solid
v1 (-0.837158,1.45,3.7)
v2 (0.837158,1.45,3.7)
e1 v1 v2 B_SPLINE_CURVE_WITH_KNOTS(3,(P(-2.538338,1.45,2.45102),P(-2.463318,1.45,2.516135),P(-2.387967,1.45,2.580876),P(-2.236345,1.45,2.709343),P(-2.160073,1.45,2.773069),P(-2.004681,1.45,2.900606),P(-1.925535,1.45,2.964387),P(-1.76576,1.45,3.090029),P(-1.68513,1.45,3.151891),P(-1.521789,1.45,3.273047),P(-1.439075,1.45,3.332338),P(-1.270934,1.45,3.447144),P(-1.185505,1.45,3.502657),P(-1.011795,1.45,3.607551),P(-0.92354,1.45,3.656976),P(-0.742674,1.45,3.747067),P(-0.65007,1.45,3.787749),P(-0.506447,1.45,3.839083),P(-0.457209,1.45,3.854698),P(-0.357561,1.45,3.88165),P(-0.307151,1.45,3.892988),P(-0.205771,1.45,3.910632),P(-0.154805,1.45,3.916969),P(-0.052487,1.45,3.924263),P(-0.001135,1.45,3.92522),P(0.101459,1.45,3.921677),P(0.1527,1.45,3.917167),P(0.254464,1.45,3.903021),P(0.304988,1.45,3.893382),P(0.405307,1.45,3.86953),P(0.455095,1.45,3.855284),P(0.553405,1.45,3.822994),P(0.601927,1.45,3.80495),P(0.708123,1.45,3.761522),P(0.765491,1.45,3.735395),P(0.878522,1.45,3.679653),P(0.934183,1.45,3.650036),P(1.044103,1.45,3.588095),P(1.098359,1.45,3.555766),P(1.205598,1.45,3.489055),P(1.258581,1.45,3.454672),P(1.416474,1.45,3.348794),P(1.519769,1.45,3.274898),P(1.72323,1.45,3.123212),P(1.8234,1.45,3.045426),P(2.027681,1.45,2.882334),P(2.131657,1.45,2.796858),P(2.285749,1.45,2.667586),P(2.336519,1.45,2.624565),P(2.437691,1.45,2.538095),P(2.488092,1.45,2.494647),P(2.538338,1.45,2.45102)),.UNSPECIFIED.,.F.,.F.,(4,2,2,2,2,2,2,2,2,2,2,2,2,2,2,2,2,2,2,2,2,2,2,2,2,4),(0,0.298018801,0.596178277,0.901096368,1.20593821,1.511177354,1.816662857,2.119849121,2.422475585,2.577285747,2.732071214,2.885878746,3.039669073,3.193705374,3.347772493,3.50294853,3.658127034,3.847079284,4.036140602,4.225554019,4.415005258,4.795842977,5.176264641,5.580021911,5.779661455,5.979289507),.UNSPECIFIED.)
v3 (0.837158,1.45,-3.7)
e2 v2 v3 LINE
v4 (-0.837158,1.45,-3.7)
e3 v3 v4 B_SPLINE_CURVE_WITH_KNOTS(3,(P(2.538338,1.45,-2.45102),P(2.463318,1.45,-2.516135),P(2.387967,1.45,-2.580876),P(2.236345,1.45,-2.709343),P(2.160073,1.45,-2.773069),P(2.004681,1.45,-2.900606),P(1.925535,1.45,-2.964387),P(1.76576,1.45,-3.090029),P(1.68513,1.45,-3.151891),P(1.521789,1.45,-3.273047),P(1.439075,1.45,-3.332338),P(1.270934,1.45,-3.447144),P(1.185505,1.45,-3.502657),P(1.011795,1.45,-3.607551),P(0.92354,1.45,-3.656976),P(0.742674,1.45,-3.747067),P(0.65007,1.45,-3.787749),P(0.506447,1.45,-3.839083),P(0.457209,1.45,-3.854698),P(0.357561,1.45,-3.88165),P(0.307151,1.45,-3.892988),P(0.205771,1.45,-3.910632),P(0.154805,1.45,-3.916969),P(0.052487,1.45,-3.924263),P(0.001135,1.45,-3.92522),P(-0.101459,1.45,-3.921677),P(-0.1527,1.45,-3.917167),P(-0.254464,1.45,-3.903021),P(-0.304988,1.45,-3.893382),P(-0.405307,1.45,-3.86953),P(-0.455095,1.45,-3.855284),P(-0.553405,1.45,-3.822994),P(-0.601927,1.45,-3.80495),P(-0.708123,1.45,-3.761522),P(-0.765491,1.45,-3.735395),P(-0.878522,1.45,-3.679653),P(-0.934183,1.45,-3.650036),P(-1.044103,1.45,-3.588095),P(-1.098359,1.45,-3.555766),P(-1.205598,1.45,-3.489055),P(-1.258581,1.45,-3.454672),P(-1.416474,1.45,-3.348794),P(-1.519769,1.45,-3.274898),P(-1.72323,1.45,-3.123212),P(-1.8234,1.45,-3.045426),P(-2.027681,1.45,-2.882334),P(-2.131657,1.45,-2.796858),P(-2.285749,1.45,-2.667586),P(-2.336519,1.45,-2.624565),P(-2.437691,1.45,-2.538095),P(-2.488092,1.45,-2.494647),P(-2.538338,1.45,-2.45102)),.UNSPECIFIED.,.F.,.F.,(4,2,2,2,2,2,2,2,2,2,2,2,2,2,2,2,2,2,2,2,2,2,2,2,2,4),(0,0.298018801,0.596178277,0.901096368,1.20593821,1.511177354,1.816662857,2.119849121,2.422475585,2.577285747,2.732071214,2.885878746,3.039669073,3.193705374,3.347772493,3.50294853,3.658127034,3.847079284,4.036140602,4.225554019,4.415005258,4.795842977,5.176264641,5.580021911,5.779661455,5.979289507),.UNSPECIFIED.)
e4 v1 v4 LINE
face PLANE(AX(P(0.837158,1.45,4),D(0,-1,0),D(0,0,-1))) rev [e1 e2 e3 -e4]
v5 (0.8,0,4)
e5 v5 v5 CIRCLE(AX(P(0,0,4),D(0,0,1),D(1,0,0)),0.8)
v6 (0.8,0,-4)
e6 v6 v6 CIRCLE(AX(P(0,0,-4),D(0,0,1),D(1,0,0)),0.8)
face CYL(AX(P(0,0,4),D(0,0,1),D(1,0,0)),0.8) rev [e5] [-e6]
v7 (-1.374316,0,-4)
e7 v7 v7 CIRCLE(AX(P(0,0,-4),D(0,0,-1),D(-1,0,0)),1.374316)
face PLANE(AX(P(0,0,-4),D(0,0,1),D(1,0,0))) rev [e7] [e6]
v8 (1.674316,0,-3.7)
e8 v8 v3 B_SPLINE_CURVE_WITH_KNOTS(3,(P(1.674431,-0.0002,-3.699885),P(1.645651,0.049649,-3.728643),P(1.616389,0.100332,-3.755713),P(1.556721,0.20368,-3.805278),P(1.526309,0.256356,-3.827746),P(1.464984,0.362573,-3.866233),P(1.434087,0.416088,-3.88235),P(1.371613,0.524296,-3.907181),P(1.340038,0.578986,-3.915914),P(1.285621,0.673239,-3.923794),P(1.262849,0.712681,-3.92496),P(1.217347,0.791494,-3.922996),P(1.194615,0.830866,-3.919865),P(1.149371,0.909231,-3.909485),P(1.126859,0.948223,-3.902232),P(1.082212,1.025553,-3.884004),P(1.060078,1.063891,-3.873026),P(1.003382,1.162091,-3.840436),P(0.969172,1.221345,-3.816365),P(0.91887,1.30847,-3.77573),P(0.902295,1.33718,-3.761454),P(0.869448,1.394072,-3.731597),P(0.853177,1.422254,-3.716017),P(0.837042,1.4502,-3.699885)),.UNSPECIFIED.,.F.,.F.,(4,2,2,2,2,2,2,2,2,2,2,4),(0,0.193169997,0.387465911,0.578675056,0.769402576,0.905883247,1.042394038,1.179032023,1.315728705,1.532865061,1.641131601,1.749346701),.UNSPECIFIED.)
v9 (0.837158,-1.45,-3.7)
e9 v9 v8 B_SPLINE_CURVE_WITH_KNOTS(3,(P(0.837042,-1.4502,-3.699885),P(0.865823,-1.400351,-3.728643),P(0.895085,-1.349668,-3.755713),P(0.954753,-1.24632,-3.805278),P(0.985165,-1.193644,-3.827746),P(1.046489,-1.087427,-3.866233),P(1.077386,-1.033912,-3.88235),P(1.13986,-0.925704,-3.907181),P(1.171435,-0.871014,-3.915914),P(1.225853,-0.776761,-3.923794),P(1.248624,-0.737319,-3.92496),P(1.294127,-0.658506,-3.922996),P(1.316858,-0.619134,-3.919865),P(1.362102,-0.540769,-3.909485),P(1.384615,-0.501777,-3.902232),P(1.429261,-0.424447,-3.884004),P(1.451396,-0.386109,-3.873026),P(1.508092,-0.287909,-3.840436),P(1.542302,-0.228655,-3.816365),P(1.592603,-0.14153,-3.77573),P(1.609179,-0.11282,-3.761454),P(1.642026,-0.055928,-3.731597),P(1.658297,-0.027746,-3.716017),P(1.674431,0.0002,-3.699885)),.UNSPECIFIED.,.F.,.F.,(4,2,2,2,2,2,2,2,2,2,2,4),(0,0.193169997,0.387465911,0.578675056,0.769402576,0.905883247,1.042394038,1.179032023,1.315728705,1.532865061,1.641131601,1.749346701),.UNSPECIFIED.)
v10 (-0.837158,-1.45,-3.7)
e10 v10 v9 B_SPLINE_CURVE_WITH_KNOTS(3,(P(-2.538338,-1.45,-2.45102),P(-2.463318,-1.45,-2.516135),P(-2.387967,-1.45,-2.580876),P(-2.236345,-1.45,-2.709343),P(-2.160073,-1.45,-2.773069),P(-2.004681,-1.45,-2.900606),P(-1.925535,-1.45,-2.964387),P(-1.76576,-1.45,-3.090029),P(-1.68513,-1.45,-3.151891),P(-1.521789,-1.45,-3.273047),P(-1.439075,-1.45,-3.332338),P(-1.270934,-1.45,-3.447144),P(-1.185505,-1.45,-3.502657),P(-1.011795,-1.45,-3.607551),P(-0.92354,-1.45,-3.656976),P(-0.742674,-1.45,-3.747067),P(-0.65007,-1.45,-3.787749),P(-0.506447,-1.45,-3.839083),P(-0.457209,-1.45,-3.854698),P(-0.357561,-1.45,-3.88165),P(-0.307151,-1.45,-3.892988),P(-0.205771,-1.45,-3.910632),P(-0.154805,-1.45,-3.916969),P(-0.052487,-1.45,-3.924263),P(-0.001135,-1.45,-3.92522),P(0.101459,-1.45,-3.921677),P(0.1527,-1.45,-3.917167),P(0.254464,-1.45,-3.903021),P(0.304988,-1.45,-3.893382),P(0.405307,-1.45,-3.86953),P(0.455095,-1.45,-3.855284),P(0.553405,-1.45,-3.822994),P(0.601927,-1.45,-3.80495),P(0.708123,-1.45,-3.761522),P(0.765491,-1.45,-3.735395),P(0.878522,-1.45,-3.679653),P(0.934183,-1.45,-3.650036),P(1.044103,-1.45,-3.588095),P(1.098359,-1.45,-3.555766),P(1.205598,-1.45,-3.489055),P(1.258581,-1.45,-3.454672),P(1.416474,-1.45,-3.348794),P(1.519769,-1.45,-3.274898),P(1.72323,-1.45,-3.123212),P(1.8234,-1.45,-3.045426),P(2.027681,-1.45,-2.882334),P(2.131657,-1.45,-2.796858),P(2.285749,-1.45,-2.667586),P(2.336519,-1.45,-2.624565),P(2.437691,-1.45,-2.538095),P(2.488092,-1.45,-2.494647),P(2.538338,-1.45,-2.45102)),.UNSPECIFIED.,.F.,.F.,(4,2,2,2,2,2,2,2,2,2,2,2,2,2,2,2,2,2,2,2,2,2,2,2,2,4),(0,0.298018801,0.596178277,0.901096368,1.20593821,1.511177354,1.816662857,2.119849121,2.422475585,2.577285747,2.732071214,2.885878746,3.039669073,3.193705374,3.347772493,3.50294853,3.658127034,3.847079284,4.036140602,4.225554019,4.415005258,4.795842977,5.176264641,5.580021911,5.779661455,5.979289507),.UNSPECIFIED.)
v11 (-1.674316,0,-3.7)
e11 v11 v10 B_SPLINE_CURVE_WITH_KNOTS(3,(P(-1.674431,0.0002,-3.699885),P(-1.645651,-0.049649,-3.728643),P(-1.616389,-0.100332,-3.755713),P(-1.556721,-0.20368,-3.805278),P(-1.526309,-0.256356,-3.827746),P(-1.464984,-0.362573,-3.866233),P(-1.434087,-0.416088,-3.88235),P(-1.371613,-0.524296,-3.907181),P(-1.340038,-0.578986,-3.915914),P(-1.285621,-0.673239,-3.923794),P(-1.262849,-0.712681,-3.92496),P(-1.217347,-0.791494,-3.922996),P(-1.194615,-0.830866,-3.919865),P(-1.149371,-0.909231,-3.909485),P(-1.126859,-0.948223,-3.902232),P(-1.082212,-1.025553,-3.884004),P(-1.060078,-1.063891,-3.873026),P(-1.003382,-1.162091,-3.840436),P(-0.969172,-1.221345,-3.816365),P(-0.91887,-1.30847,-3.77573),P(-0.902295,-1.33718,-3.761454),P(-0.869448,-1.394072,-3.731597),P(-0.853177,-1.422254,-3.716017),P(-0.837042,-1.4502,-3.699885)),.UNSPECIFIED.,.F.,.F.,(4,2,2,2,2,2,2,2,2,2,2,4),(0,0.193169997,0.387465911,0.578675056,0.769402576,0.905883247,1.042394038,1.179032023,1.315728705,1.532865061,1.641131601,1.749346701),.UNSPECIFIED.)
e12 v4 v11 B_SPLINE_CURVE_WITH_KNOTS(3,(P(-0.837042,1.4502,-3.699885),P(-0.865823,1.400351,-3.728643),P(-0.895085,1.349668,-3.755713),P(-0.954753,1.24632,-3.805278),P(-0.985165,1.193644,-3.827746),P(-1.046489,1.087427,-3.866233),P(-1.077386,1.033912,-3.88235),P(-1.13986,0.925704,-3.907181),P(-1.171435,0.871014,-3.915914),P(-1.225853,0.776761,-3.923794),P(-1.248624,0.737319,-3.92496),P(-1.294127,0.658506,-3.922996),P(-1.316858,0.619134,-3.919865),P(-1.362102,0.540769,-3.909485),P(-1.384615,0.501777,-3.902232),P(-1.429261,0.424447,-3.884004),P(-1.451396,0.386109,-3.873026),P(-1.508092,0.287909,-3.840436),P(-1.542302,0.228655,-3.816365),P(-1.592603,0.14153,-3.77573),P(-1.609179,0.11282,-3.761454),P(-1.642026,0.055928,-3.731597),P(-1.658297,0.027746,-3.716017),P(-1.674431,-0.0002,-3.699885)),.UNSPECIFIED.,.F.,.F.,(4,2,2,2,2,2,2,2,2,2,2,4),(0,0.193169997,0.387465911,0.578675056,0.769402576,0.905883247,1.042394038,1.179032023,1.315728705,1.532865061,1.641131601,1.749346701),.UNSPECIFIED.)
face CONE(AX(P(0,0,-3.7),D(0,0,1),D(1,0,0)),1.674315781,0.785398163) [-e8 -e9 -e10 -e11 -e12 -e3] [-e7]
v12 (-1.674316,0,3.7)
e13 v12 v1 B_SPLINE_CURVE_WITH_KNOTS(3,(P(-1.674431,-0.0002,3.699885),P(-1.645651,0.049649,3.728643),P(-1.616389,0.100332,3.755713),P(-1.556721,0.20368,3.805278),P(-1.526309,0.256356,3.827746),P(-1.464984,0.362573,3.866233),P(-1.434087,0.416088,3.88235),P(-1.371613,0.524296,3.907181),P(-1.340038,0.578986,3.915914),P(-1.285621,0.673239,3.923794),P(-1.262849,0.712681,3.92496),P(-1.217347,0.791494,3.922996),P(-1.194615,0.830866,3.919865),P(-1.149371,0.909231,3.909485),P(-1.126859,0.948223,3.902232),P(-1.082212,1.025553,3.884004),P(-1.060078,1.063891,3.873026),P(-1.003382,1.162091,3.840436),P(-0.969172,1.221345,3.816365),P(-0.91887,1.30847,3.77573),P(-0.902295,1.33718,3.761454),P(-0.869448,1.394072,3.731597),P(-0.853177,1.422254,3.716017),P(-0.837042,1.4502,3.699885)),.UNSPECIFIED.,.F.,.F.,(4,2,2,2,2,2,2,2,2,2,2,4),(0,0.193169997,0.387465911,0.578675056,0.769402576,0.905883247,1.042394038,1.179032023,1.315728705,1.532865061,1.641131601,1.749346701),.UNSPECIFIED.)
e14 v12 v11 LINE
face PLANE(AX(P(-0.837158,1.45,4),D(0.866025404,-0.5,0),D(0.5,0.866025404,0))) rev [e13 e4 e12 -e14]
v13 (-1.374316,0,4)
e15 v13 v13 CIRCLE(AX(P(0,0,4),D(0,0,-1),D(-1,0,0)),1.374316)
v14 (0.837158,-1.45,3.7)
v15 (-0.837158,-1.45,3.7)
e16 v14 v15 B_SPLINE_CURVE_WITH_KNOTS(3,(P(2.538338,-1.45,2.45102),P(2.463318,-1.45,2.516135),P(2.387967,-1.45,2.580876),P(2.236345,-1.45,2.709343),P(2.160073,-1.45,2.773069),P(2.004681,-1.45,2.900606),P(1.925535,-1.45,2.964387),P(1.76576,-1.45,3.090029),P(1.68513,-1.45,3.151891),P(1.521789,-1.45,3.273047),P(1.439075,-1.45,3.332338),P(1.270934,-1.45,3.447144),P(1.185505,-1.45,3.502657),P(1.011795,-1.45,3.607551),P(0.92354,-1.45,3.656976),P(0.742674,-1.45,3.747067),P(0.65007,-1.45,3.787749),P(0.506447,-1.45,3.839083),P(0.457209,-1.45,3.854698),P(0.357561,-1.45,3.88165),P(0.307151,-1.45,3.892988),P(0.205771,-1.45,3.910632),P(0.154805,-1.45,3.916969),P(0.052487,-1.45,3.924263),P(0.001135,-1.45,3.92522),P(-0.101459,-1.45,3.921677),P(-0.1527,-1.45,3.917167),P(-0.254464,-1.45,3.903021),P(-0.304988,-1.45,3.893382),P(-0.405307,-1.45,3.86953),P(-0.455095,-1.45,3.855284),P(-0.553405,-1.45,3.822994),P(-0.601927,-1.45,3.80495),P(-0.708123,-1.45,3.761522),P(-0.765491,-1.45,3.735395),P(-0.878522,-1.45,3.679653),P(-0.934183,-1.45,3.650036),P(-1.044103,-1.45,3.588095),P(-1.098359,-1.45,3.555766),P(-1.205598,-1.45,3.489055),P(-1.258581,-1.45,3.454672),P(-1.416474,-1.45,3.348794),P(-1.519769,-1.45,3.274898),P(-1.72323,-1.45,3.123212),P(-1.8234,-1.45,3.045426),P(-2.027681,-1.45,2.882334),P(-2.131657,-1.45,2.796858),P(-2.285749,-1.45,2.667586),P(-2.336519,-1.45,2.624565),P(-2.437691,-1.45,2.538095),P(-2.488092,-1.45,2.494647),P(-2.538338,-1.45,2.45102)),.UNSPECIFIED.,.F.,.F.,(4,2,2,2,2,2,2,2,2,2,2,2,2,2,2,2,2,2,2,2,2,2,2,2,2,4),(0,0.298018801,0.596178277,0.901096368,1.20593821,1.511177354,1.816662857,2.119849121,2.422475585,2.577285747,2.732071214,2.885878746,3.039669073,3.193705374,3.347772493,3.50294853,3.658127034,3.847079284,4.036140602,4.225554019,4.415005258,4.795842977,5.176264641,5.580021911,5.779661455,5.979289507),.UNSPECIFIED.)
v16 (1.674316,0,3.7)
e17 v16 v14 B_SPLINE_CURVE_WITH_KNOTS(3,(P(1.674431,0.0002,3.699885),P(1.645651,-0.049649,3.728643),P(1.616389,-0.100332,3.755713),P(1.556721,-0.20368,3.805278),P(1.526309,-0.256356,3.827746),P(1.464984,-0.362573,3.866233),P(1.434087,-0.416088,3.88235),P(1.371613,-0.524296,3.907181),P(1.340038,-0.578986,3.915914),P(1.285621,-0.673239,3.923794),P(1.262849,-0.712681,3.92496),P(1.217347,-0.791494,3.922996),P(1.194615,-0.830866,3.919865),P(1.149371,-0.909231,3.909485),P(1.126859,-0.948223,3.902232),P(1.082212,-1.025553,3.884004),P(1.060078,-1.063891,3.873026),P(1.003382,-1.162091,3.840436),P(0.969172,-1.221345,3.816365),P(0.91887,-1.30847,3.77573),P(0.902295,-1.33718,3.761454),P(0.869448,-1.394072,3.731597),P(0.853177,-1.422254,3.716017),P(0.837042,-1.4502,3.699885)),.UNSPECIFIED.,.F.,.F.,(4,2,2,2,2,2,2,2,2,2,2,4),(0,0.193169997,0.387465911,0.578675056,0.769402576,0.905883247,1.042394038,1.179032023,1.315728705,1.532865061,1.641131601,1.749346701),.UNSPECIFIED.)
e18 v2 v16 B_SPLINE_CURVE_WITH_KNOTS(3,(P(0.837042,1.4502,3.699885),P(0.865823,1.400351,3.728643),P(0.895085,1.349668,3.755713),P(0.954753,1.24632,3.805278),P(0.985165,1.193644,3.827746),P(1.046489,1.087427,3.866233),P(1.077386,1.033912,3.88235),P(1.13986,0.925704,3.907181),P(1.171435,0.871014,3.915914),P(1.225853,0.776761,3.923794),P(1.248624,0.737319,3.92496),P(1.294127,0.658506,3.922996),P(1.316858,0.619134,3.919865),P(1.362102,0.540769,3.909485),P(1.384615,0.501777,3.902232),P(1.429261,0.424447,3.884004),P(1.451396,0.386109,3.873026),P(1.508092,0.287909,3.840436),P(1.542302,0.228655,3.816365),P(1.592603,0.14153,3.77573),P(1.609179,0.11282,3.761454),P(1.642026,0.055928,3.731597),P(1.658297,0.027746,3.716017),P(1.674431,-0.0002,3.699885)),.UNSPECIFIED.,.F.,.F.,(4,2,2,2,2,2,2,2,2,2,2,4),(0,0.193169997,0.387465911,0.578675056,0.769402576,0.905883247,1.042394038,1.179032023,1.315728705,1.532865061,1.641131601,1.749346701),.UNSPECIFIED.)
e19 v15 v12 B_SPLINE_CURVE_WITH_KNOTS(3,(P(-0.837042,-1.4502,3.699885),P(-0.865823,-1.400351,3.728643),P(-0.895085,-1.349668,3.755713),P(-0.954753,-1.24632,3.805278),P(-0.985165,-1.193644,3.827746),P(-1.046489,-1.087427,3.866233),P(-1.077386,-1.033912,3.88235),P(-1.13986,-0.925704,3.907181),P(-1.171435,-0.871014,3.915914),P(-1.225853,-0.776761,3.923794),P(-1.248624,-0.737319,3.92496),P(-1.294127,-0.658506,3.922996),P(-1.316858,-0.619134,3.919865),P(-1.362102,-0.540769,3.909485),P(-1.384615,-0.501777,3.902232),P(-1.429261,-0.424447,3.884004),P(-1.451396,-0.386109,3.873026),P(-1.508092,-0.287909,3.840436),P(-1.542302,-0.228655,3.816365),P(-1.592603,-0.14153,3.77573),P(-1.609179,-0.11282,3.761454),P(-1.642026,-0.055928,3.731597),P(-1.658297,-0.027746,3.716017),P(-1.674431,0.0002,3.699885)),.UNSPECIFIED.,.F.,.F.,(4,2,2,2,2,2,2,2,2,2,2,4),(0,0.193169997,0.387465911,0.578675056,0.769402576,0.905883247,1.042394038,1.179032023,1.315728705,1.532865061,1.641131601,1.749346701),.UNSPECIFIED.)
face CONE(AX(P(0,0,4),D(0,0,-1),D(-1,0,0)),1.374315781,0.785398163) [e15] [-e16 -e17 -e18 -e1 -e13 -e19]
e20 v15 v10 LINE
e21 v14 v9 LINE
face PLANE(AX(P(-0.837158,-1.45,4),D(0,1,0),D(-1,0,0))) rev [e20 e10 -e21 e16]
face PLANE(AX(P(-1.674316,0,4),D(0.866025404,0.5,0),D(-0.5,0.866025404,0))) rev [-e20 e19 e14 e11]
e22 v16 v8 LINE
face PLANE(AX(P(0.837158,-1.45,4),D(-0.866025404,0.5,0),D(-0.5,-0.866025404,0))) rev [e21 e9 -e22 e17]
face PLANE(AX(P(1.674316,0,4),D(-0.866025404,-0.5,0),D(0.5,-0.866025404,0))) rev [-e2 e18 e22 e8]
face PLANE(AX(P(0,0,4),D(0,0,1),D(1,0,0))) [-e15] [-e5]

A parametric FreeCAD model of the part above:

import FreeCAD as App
import Part
import Sketcher
Q = App.Units.Quantity


def add_polygon(sketch, points):
    """Adds a closed chain of lines whose ends are joined by coincident constraints."""
    first, n = sketch.GeometryCount, len(points)
    for a, b in zip(points, points[1:] + points[:1]):
        sketch.addGeometry(Part.LineSegment(App.Vector(*a, 0), App.Vector(*b, 0)), False)
    for i in range(n):
        sketch.addConstraint(Sketcher.Constraint("Coincident", first + i, 2, first + (i + 1) % n, 1))

doc = App.newDocument("Part")
body = doc.addObject("PartDesign::Body", "Body")

# Sketch on XY plane
sketch1 = body.newObject("Sketcher::SketchObject", "Sketch")
sketch1.AttachmentSupport = (doc.getObject("XY_Plane"), [""])
sketch1.MapMode = "FlatFace"
add_polygon(sketch1, [(1.674316, 0), (0.837158, 1.45), (-0.837158, 1.45), (-1.674316, 0), (-0.837158, -1.45), (0.837158, -1.45)])  # lines 0-5
sketch1.addConstraint([
    Sketcher.Constraint("Horizontal", 1),
    Sketcher.Constraint("Horizontal", 4),
    Sketcher.Constraint("Symmetric", 0, 2, 3, 2, -1, 1),
    Sketcher.Constraint("Symmetric", 2, 2, 5, 2, -1, 1),
    Sketcher.Constraint("PointOnObject", 2, 2, -1),
    Sketcher.Constraint("Parallel", 2, 5),
    Sketcher.Constraint("Vertical", 1, 2, 3, 2),
    Sketcher.Constraint("Angle", 0, Q("120 deg")),
    Sketcher.Constraint("DistanceY", 3, 2, 1, 2, 2.9),
    Sketcher.Constraint("DistanceX", 1, 2, 1, 1, 1.674316),
])
pad1 = body.newObject("PartDesign::Pad", "Pad")
pad1.Profile = sketch1
pad1.Length = 8
pad1.Midplane = True

# Sketch on XY plane
sketch2 = body.newObject("Sketcher::SketchObject", "Sketch001")
sketch2.AttachmentSupport = (doc.getObject("XY_Plane"), [""])
sketch2.MapMode = "FlatFace"
sketch2.AttachmentOffset = App.Placement(App.Vector(0, 0, 4), App.Rotation())
sketch2.addGeometry(Part.Circle(App.Vector(0, 0, 0), App.Vector(0, 0, 1), 0.8), False)
sketch2.addConstraint([
    Sketcher.Constraint("Coincident", 0, 3, -1, 1),
    Sketcher.Constraint("Diameter", 0, 1.6),
])
doc.recompute()
hole = body.newObject("PartDesign::Hole", "Hole")
hole.Profile = sketch2
hole.ThreadType = "None"
hole.Diameter = 1.6
hole.DepthType = "ThroughAll"

# Sketch on XZ plane
sketch3 = body.newObject("Sketcher::SketchObject", "Sketch002")
sketch3.AttachmentSupport = (doc.getObject("XZ_Plane"), [""])
sketch3.MapMode = "FlatFace"
add_polygon(sketch3, [(-1.674316, -3.7), (-1.374316, -4), (-1.674316, -4)])  # lines 0-2
add_polygon(sketch3, [(-1.674316, 4), (-1.374316, 4), (-1.674316, 3.7)])  # lines 3-5
sketch3.addConstraint([
    Sketcher.Constraint("Horizontal", 1),
    Sketcher.Constraint("Vertical", 2),
    Sketcher.Constraint("Horizontal", 3),
    Sketcher.Constraint("Vertical", 5),
    Sketcher.Constraint("Symmetric", 0, 2, 3, 2, -1),
    Sketcher.Constraint("Symmetric", 2, 2, 4, 2, -1),
    Sketcher.Constraint("Perpendicular", 0, 4),
    Sketcher.Constraint("DistanceX", 1, 2, 1, 1, 0.3),
    Sketcher.Constraint("DistanceY", 0, 2, -1, 1, 4.0),
    Sketcher.Constraint("DistanceX", 0, 2, -1, 1, 1.374316),
])
groove = body.newObject("PartDesign::Groove", "Groove")
groove.Profile = sketch3
groove.ReferenceAxis = (sketch3, ["V_Axis"])
groove.Angle = 360

doc.recompute()
